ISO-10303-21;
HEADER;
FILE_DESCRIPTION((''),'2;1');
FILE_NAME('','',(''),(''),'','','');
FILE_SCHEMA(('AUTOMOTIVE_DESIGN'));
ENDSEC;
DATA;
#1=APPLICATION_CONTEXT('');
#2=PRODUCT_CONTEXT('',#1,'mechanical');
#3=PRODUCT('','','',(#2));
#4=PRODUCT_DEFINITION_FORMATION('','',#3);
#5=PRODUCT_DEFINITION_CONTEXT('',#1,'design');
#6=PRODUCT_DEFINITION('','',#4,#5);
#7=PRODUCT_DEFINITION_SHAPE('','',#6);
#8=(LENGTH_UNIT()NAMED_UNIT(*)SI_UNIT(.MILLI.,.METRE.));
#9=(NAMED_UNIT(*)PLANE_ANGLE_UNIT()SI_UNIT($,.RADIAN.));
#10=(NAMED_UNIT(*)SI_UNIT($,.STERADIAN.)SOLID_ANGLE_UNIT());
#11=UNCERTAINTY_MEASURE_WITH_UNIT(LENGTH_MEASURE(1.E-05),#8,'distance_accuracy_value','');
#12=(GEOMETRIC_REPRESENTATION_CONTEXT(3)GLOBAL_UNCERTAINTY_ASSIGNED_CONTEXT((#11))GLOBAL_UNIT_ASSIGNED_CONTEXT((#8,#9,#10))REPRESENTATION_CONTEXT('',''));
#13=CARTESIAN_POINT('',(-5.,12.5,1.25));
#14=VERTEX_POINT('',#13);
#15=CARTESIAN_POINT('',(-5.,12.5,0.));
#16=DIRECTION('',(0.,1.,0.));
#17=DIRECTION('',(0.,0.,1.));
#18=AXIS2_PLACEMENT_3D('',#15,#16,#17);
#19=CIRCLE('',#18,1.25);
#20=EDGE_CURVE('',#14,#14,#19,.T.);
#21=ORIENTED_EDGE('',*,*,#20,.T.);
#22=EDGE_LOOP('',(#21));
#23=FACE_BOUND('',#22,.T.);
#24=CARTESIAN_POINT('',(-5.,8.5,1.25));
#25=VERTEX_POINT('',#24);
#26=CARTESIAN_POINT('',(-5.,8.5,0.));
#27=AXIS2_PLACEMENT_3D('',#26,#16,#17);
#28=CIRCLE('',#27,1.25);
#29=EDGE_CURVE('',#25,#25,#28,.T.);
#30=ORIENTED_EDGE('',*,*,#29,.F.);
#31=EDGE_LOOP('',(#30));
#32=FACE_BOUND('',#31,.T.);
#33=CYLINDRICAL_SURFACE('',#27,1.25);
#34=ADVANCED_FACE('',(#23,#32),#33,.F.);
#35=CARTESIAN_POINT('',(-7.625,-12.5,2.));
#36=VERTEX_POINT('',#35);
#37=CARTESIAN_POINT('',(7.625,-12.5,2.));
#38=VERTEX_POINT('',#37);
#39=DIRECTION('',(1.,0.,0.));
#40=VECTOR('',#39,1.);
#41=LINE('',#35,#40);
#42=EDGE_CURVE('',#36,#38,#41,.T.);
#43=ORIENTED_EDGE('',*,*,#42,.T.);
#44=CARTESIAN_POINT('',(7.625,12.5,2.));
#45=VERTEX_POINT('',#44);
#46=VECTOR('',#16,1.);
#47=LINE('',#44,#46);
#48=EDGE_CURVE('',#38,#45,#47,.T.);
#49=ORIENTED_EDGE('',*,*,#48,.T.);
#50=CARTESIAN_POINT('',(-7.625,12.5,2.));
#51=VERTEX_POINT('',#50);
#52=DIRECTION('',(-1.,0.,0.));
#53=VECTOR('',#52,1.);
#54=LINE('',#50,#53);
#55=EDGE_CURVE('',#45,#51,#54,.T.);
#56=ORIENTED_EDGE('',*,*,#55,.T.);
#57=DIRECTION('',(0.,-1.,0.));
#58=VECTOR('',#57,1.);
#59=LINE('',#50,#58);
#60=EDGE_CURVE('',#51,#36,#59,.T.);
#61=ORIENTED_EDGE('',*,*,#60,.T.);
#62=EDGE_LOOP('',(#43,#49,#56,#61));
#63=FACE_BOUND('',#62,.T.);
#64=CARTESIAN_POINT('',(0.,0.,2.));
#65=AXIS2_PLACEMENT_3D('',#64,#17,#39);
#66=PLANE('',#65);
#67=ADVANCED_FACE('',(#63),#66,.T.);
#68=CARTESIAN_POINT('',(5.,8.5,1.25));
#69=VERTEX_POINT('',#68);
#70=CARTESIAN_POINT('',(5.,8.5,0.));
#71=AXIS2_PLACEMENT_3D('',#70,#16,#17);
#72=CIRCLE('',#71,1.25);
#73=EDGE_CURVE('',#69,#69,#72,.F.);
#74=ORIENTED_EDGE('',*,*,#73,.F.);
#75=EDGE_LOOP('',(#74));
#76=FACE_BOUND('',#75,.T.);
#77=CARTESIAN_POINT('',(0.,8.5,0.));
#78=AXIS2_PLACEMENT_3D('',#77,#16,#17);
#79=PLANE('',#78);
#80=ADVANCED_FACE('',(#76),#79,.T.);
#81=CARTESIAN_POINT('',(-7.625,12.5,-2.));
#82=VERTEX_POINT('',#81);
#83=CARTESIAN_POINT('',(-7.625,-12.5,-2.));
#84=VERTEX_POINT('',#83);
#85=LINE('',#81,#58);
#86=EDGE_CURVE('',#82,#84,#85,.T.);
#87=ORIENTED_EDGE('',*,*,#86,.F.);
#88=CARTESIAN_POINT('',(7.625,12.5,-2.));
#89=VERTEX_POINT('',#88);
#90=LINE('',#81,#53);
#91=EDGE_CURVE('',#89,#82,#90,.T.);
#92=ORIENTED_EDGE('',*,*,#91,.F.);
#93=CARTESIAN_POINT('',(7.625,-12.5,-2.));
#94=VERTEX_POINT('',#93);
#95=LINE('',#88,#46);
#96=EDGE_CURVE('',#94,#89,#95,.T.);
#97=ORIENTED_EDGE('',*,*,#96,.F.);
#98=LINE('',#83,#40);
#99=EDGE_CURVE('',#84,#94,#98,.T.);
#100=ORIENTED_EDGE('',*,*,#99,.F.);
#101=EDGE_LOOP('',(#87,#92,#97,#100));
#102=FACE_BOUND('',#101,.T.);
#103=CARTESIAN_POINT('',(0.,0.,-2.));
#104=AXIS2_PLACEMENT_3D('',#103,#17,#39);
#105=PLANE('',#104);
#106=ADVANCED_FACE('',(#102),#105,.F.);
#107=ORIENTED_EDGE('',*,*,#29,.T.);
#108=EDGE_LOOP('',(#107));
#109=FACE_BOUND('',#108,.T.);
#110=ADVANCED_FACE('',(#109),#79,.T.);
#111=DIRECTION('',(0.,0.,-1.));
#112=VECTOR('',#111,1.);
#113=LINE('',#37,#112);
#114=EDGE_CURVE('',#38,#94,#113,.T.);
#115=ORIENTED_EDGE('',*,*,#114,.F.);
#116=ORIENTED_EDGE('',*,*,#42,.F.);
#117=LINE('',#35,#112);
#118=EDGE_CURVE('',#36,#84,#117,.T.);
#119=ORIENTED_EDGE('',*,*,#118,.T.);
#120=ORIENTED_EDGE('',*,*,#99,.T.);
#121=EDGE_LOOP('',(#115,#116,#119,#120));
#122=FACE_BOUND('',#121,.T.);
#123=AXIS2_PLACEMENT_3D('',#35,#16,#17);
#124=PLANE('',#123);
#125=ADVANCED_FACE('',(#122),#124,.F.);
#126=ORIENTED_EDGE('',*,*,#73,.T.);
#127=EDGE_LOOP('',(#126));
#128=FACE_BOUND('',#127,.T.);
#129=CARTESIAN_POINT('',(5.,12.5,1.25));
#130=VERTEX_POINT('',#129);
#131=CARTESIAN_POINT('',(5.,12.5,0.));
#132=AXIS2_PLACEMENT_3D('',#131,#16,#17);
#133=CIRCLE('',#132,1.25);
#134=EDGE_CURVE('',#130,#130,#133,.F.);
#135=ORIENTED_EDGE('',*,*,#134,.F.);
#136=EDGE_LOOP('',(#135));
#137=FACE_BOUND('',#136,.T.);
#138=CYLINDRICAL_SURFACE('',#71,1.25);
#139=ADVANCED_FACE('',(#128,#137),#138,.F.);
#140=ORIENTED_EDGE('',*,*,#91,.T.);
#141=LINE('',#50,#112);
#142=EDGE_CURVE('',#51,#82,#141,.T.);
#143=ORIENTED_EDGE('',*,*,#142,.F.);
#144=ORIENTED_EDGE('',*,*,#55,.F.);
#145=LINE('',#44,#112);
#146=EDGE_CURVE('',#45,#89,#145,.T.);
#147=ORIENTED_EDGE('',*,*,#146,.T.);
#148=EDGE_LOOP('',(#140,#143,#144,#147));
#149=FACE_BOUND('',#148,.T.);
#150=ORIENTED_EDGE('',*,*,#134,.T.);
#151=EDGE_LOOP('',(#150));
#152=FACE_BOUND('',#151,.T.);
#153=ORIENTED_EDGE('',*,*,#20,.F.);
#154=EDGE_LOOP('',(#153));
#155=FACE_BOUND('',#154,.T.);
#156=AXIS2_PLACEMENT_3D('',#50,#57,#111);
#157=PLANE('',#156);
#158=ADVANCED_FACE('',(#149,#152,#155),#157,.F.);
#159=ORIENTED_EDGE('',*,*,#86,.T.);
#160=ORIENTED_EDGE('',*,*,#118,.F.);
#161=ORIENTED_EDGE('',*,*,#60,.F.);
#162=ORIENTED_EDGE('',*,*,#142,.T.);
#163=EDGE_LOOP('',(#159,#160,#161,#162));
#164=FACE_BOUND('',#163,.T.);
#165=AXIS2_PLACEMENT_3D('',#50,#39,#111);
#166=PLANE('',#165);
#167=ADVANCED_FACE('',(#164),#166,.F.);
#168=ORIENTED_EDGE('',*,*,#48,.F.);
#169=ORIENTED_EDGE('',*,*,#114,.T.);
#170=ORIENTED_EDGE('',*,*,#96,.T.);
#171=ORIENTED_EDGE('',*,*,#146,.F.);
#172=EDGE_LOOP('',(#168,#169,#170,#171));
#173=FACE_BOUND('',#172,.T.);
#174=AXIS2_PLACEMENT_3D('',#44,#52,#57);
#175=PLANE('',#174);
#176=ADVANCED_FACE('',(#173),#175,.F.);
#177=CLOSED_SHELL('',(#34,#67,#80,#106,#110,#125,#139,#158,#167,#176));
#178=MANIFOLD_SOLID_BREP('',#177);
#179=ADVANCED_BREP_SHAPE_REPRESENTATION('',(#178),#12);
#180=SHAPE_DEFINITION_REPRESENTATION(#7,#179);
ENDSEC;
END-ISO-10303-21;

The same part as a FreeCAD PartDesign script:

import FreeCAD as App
import Part
import Sketcher

V = App.Vector


def add_polygon(sketch, points):
    """Adds a closed chain of lines whose ends are joined by coincident constraints."""
    first, n = sketch.GeometryCount, len(points)
    for a, b in zip(points, points[1:] + points[:1]):
        sketch.addGeometry(Part.LineSegment(App.Vector(*a, 0), App.Vector(*b, 0)), False)
    for i in range(n):
        sketch.addConstraint(Sketcher.Constraint("Coincident", first + i, 2, first + (i + 1) % n, 1))

doc = App.newDocument("Part")
body = doc.addObject("PartDesign::Body", "Body")

sketch1 = doc.addObject("Sketcher::SketchObject", "Sketch")
body.addObject(sketch1)
sketch1.AttachmentSupport = (doc.XY_Plane, [""])
sketch1.MapMode = "FlatFace"
add_polygon(sketch1, [(-7.625, 12.5), (-7.625, -12.5), (7.625, -12.5), (7.625, 12.5)])
sketch1.addConstraint([
    Sketcher.Constraint("Vertical", 0),
    Sketcher.Constraint("Horizontal", 1),
    Sketcher.Constraint("Vertical", 2),
    Sketcher.Constraint("Horizontal", 3),
    Sketcher.Constraint("Symmetric", 0, 2, 2, 2, -1, 1),
    Sketcher.Constraint("DistanceY", 0, 2, 0, 1, 25.0),
    Sketcher.Constraint("DistanceX", 1, 1, 1, 2, 15.25),
])
pad1 = doc.addObject("PartDesign::Pad", "Pad")
body.addObject(pad1)
pad1.Profile = sketch1
pad1.Length = 4
pad1.Midplane = True

sketch2 = doc.addObject("Sketcher::SketchObject", "Sketch001")
body.addObject(sketch2)
sketch2.AttachmentSupport = (doc.XZ_Plane, [""])
sketch2.MapMode = "FlatFace"
sketch2.AttachmentOffset = App.Placement(V(0, 0, -12.5), App.Rotation())
sketch2.addGeometry([
    Part.Circle(V(-5, 0, 0), V(0, 0, 1), 1.25),
    Part.Circle(V(5, 0, 0), V(0, 0, 1), 1.25),
], False)
sketch2.addConstraint([
    Sketcher.Constraint("Equal", 0, 1),
    Sketcher.Constraint("Symmetric", 0, 3, 1, 3, -1, 1),
    Sketcher.Constraint("PointOnObject", 0, 3, -1),
    Sketcher.Constraint("Diameter", 0, 2.5),
    Sketcher.Constraint("DistanceX", 0, 3, -1, 1, 5.0),
])
pocket1 = doc.addObject("PartDesign::Pocket", "Pocket")
body.addObject(pocket1)
pocket1.Profile = sketch2
pocket1.Length = 4
pocket1.Reversed = True

doc.recompute()
